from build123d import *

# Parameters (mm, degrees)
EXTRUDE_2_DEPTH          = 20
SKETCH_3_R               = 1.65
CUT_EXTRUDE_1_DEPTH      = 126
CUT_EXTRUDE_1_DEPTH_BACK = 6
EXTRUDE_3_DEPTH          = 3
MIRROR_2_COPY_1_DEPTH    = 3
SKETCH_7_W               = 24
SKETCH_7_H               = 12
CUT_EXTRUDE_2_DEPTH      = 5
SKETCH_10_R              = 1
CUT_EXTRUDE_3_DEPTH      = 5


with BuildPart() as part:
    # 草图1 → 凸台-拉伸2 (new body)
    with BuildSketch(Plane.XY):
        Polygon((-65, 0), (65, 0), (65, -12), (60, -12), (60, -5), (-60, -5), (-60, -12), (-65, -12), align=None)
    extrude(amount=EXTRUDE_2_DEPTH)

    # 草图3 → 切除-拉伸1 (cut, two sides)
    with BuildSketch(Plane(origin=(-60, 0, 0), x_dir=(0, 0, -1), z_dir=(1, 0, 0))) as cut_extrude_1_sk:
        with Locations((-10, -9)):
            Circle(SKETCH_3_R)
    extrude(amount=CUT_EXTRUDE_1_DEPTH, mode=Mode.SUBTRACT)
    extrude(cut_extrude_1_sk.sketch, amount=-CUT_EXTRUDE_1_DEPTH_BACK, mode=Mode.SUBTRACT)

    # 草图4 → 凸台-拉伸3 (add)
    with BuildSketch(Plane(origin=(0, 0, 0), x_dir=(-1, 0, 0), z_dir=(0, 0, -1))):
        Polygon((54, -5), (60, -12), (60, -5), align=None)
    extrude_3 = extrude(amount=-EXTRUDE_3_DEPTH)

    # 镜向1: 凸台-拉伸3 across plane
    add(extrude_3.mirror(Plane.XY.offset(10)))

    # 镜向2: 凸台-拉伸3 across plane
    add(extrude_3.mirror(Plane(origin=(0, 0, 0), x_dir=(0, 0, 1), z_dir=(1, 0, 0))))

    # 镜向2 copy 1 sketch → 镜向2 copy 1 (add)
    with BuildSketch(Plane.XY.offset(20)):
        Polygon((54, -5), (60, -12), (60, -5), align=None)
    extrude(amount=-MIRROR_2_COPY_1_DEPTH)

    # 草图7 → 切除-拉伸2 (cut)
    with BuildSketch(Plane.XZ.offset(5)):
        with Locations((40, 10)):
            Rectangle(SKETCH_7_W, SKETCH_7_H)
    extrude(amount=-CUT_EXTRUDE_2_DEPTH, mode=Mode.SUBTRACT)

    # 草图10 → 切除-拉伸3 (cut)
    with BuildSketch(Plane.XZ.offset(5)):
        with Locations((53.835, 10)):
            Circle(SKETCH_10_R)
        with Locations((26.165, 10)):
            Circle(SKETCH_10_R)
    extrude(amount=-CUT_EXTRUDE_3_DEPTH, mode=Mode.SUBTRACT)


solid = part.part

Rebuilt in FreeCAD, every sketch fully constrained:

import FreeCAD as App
import Part
import Sketcher
from FreeCAD import Vector
Q = App.Units.Quantity


def add_polygon(sketch, points):
    """Adds a closed chain of lines whose ends are joined by coincident constraints."""
    first, n = sketch.GeometryCount, len(points)
    for a, b in zip(points, points[1:] + points[:1]):
        sketch.addGeometry(Part.LineSegment(App.Vector(*a, 0), App.Vector(*b, 0)), False)
    for i in range(n):
        sketch.addConstraint(Sketcher.Constraint("Coincident", first + i, 2, first + (i + 1) % n, 1))

doc = App.newDocument("Part")
body = doc.addObject("PartDesign::Body", "Body")

# Sketch on XY plane
sketch1 = body.newObject("Sketcher::SketchObject", "Sketch")
sketch1.AttachmentSupport = (doc.getObject("XY_Plane"), [""])
sketch1.MapMode = "FlatFace"
add_polygon(sketch1, [(65, 0), (-65, 0), (-65, -12), (-60, -12), (-60, -5), (60, -5), (60, -12), (65, -12)])  # lines 0-7
sketch1.addConstraint(Sketcher.Constraint("Horizontal", 0))
sketch1.addConstraint(Sketcher.Constraint("Vertical", 1))
sketch1.addConstraint(Sketcher.Constraint("Horizontal", 2))
sketch1.addConstraint(Sketcher.Constraint("Vertical", 3))
sketch1.addConstraint(Sketcher.Constraint("Horizontal", 4))
sketch1.addConstraint(Sketcher.Constraint("Vertical", 5))
sketch1.addConstraint(Sketcher.Constraint("Horizontal", 6))
sketch1.addConstraint(Sketcher.Constraint("Vertical", 7))
sketch1.addConstraint(Sketcher.Constraint("Symmetric", 0, 2, 7, 2, -1, 1))
sketch1.addConstraint(Sketcher.Constraint("Symmetric", 2, 2, 5, 2, -2))
sketch1.addConstraint(Sketcher.Constraint("DistanceX", 0, 2, 0, 1, Q("130 mm")))
sketch1.addConstraint(Sketcher.Constraint("DistanceX", 2, 1, 2, 2, Q("5 mm")))
sketch1.addConstraint(Sketcher.Constraint("DistanceY", 1, 2, 1, 1, Q("12 mm")))
sketch1.addConstraint(Sketcher.Constraint("DistanceY", 3, 1, 3, 2, Q("7 mm")))
pad1 = body.newObject("PartDesign::Pad", "Pad")
pad1.Profile = sketch1
pad1.Length = 20

# Sketch on YZ plane
sketch2 = body.newObject("Sketcher::SketchObject", "Sketch001")
sketch2.AttachmentSupport = (doc.getObject("YZ_Plane"), [""])
sketch2.MapMode = "FlatFace"
sketch2.AttachmentOffset = App.Placement(Vector(0, 0, -60), App.Rotation())
sketch2.addGeometry(Part.Circle(Vector(-9, 10, 0), Vector(0, 0, 1), 1.6), False)
sketch2.addConstraint(Sketcher.Constraint("Diameter", 0, Q("3.3 mm")))
sketch2.addConstraint(Sketcher.Constraint("DistanceX", 0, 3, -1, 1, Q("9 mm")))
sketch2.addConstraint(Sketcher.Constraint("DistanceY", -1, 1, 0, 3, Q("10 mm")))
pocket1 = body.newObject("PartDesign::Pocket", "Pocket")
pocket1.Profile = sketch2
pocket1.Type = "ThroughAll"
pocket1.Midplane = True

# Sketch on XY plane
sketch3 = body.newObject("Sketcher::SketchObject", "Sketch002")
sketch3.AttachmentSupport = (doc.getObject("XY_Plane"), [""])
sketch3.MapMode = "FlatFace"
add_polygon(sketch3, [(-54, -5), (-60, -12), (-60, -5)])  # lines 0-2
sketch3.addConstraint(Sketcher.Constraint("Vertical", 1))
sketch3.addConstraint(Sketcher.Constraint("Horizontal", 2))
sketch3.addConstraint(Sketcher.Constraint("DistanceX", 2, 1, 2, 2, Q("6 mm")))
sketch3.addConstraint(Sketcher.Constraint("DistanceY", 1, 1, 1, 2, Q("7 mm")))
sketch3.addConstraint(Sketcher.Constraint("DistanceX", 0, 2, -1, 1, Q("60 mm")))
sketch3.addConstraint(Sketcher.Constraint("DistanceY", 0, 2, -1, 1, Q("12 mm")))
pad2 = body.newObject("PartDesign::Pad", "Pad001")
pad2.Profile = sketch3
pad2.Length = 3
doc.recompute()

datumplane = body.newObject("PartDesign::Plane", "DatumPlane")
datumplane.AttachmentSupport = (doc.getObject("XY_Plane"), [""])
datumplane.MapMode = "FlatFace"
datumplane.AttachmentOffset = App.Placement(Vector(0, 0, 10), App.Rotation())
mirrored = body.newObject("PartDesign::Mirrored", "Mirrored")
mirrored.Originals = [pad2]
mirrored.MirrorPlane = (datumplane, [""])
body.Tip = mirrored
doc.recompute()

mirrored2 = body.newObject("PartDesign::Mirrored", "Mirrored001")
mirrored2.Originals = [pad2]
mirrored2.MirrorPlane = (doc.getObject("YZ_Plane"), [""])
body.Tip = mirrored2

# Sketch on XY plane
sketch4 = body.newObject("Sketcher::SketchObject", "Sketch003")
sketch4.AttachmentSupport = (doc.getObject("XY_Plane"), [""])
sketch4.MapMode = "FlatFace"
sketch4.AttachmentOffset = App.Placement(Vector(0, 0, 20), App.Rotation())
add_polygon(sketch4, [(54, -5), (60, -12), (60, -5)])  # lines 0-2
sketch4.addConstraint(Sketcher.Constraint("Vertical", 1))
sketch4.addConstraint(Sketcher.Constraint("Horizontal", 2))
sketch4.addConstraint(Sketcher.Constraint("DistanceX", 2, 2, 2, 1, Q("6 mm")))
sketch4.addConstraint(Sketcher.Constraint("DistanceY", 1, 1, 1, 2, Q("7 mm")))
sketch4.addConstraint(Sketcher.Constraint("DistanceX", -1, 1, 0, 2, Q("60 mm")))
sketch4.addConstraint(Sketcher.Constraint("DistanceY", 0, 2, -1, 1, Q("12 mm")))
pad3 = body.newObject("PartDesign::Pad", "Pad002")
pad3.Profile = sketch4
pad3.Length = 3
pad3.Reversed = True

# Sketch on XZ plane
sketch5 = body.newObject("Sketcher::SketchObject", "Sketch004")
sketch5.AttachmentSupport = (doc.getObject("XZ_Plane"), [""])
sketch5.MapMode = "FlatFace"
sketch5.AttachmentOffset = App.Placement(Vector(0, 0, 5), App.Rotation())
add_polygon(sketch5, [(28, 16), (28, 4), (52, 4), (52, 16)])  # lines 0-3
sketch5.addConstraint(Sketcher.Constraint("Vertical", 0))
sketch5.addConstraint(Sketcher.Constraint("Horizontal", 1))
sketch5.addConstraint(Sketcher.Constraint("Vertical", 2))
sketch5.addConstraint(Sketcher.Constraint("Horizontal", 3))
sketch5.addConstraint(Sketcher.Constraint("DistanceX", 1, 1, 1, 2, Q("24 mm")))
sketch5.addConstraint(Sketcher.Constraint("DistanceY", 0, 2, 0, 1, Q("12 mm")))
sketch5.addConstraint(Sketcher.Constraint("DistanceX", -1, 1, 0, 2, Q("28 mm")))
sketch5.addConstraint(Sketcher.Constraint("DistanceY", -1, 1, 0, 2, Q("4 mm")))
pocket2 = body.newObject("PartDesign::Pocket", "Pocket001")
pocket2.Profile = sketch5
pocket2.Length = 5

# Sketch on XZ plane
sketch6 = body.newObject("Sketcher::SketchObject", "Sketch005")
sketch6.AttachmentSupport = (doc.getObject("XZ_Plane"), [""])
sketch6.MapMode = "FlatFace"
sketch6.AttachmentOffset = App.Placement(Vector(0, 0, 5), App.Rotation())
sketch6.addGeometry(Part.Circle(Vector(53.8, 10, 0), Vector(0, 0, 1), 1), False)
sketch6.addGeometry(Part.Circle(Vector(26.2, 10, 0), Vector(0, 0, 1), 1), False)
sketch6.addConstraint(Sketcher.Constraint("Equal", 0, 1))
sketch6.addConstraint(Sketcher.Constraint("Horizontal", 0, 3, 1, 3))
sketch6.addConstraint(Sketcher.Constraint("Diameter", 0, Q("2 mm")))
sketch6.addConstraint(Sketcher.Constraint("DistanceY", -1, 1, 0, 3, Q("10 mm")))
sketch6.addConstraint(Sketcher.Constraint("DistanceX", 1, 3, 0, 3, Q("27.67 mm")))
sketch6.addConstraint(Sketcher.Constraint("DistanceX", -1, 1, 0, 3, Q("53.835 mm")))
pocket3 = body.newObject("PartDesign::Pocket", "Pocket002")
pocket3.Profile = sketch6
pocket3.Length = 5

doc.recompute()
